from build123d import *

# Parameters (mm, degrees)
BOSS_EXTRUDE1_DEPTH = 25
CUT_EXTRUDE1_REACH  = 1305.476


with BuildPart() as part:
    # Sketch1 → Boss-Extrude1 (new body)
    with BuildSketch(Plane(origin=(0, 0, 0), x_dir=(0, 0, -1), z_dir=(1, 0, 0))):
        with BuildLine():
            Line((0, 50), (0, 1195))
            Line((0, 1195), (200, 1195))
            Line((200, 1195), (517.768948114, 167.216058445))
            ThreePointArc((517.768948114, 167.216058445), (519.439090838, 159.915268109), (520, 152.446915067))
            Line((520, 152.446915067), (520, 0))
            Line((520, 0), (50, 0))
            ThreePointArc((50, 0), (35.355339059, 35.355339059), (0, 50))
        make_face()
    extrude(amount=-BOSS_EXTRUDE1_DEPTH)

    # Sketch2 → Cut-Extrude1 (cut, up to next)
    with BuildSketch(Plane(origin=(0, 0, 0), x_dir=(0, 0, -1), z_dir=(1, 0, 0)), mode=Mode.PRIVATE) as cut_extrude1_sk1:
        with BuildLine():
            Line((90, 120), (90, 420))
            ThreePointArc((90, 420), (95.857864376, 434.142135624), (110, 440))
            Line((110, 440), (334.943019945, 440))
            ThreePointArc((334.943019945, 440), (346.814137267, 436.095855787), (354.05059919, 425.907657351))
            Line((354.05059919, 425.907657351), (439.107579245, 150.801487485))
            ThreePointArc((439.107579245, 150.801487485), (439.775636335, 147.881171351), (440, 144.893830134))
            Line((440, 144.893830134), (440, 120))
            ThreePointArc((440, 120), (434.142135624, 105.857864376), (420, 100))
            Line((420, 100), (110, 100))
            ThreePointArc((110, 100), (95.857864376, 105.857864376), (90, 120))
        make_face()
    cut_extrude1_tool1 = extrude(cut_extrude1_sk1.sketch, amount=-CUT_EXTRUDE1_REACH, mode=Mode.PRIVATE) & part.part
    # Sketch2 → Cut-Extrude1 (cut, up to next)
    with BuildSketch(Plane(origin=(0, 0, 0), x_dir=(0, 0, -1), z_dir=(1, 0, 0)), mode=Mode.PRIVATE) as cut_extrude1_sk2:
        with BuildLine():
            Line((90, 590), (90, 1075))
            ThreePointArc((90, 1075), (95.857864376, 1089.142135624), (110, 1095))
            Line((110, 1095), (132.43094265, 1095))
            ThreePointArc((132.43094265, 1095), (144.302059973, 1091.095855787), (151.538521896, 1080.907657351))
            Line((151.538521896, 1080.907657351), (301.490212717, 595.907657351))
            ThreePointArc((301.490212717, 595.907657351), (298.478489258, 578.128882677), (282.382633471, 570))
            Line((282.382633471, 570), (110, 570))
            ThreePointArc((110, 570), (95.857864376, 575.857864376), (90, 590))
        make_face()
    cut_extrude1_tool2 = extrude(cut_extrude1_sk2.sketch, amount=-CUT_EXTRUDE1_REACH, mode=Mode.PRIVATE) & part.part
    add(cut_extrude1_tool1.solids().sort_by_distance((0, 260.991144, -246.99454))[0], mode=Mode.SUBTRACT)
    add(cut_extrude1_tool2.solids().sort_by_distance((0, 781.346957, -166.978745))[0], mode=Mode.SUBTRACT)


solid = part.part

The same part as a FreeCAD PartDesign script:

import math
import FreeCAD as App
import Part
import Sketcher
from FreeCAD import Vector
Q = App.Units.Quantity

doc = App.newDocument("Part")
params = doc.addObject("Spreadsheet::Sheet", "Params")
for row, (alias, value) in enumerate([
    ("sketch1_radius", "50 mm"),
    ("sketch1_width", "1145 mm"),
    ("sketch1_height", "470 mm"),
    ("sketch1_height2", "200 mm"),
    ("pad1_length", "25 mm"),
    ("sketch2_radius", "20 mm"),
    ("sketch2_width", "300 mm"),
    ("sketch2_height", "310 mm"),
    ("sketch3_radius", "20 mm"),
    ("sketch3_width", "485 mm"),
], start=1):
    params.set(f"A{row}", alias)
    params.set(f"B{row}", "=" + value)
    params.setAlias(f"B{row}", alias)

body = doc.addObject("PartDesign::Body", "Body")

sketch1 = doc.addObject("Sketcher::SketchObject", "Sketch")
body.addObject(sketch1)
sketch1.AttachmentSupport = (doc.YZ_Plane, [""])
sketch1.MapMode = "FlatFace"
sketch1.addGeometry([
    Part.LineSegment(Vector(1195, 0, 0), Vector(50, 0, 0)),
    Part.ArcOfCircle(Part.Circle(Vector(0, 0, 0), Vector(0, 0, 1), 50), math.radians(-90), math.radians(0)),
    Part.LineSegment(Vector(0, -50, 0), Vector(0, -520, 0)),
    Part.LineSegment(Vector(0, -520, 0), Vector(152, -520, 0)),
    Part.ArcOfCircle(Part.Circle(Vector(152, -470, 0), Vector(0, 0, 1), 50), math.radians(-90), math.radians(-72.82)),
    Part.LineSegment(Vector(167, -518, 0), Vector(1195, -200, 0)),
    Part.LineSegment(Vector(1195, -200, 0), Vector(1195, 0, 0)),
], False)
sketch1.addConstraint([
    Sketcher.Constraint("Coincident", 0, 2, 1, 2),
    Sketcher.Constraint("Coincident", 1, 1, 2, 1),
    Sketcher.Constraint("Coincident", 2, 2, 3, 1),
    Sketcher.Constraint("Tangent", 3, 2, 4, 1),
    Sketcher.Constraint("Tangent", 4, 2, 5, 1),
    Sketcher.Constraint("Coincident", 5, 2, 6, 1),
    Sketcher.Constraint("Coincident", 6, 2, 0, 1),
    Sketcher.Constraint("Horizontal", 0),
    Sketcher.Constraint("Vertical", 2),
    Sketcher.Constraint("Horizontal", 3),
    Sketcher.Constraint("Vertical", 6),
    Sketcher.Constraint("Coincident", 1, 3, -1, 1),
    Sketcher.Constraint("Equal", 1, 4),
    Sketcher.Constraint("PointOnObject", 0, 2, -1),
    Sketcher.Constraint("PointOnObject", 1, 1, -2),
    Sketcher.Constraint("Radius", 1, Q("50 mm")),
    Sketcher.Constraint("DistanceX", 0, 2, 0, 1, Q("1145 mm")),
    Sketcher.Constraint("DistanceY", 2, 2, 2, 1, Q("470 mm")),
    Sketcher.Constraint("DistanceY", 6, 1, 6, 2, Q("200 mm")),
    Sketcher.Constraint("Distance", 5, Q("1075.786659 mm")),
])
sketch1.setExpression("Constraints[15]", "Params.sketch1_radius")
sketch1.setExpression("Constraints[16]", "Params.sketch1_width")
sketch1.setExpression("Constraints[17]", "Params.sketch1_height")
sketch1.setExpression("Constraints[18]", "Params.sketch1_height2")
pad1 = doc.addObject("PartDesign::Pad", "Pad")
body.addObject(pad1)
pad1.Profile = sketch1
pad1.setExpression("Length", "Params.pad1_length")
pad1.Reversed = True

sketch2 = doc.addObject("Sketcher::SketchObject", "Sketch001")
body.addObject(sketch2)
sketch2.AttachmentSupport = (doc.YZ_Plane, [""])
sketch2.MapMode = "FlatFace"
sketch2.addGeometry([
    Part.LineSegment(Vector(420, -90, 0), Vector(120, -90, 0)),
    Part.ArcOfCircle(Part.Circle(Vector(120, -110, 0), Vector(0, 0, 1), 20), math.radians(90), math.radians(180)),
    Part.LineSegment(Vector(100, -110, 0), Vector(100, -420, 0)),
    Part.ArcOfCircle(Part.Circle(Vector(120, -420, 0), Vector(0, 0, 1), 20), math.radians(180), math.radians(270)),
    Part.LineSegment(Vector(120, -440, 0), Vector(145, -440, 0)),
    Part.ArcOfCircle(Part.Circle(Vector(145, -420, 0), Vector(0, 0, 1), 20), math.radians(-90), math.radians(-72.82)),
    Part.LineSegment(Vector(151, -439, 0), Vector(426, -354, 0)),
    Part.ArcOfCircle(Part.Circle(Vector(420, -335, 0), Vector(0, 0, 1), 20), math.radians(-73), math.radians(0)),
    Part.LineSegment(Vector(440, -335, 0), Vector(440, -110, 0)),
    Part.ArcOfCircle(Part.Circle(Vector(420, -110, 0), Vector(0, 0, 1), 20), math.radians(0), math.radians(90)),
], False)
sketch2.addConstraint([
    Sketcher.Constraint("Tangent", 0, 2, 1, 1),
    Sketcher.Constraint("Tangent", 1, 2, 2, 1),
    Sketcher.Constraint("Tangent", 2, 2, 3, 1),
    Sketcher.Constraint("Tangent", 3, 2, 4, 1),
    Sketcher.Constraint("Tangent", 4, 2, 5, 1),
    Sketcher.Constraint("Tangent", 5, 2, 6, 1),
    Sketcher.Constraint("Tangent", 6, 2, 7, 1),
    Sketcher.Constraint("Tangent", 7, 2, 8, 1),
    Sketcher.Constraint("Tangent", 8, 2, 9, 1),
    Sketcher.Constraint("Tangent", 9, 2, 0, 1),
    Sketcher.Constraint("Horizontal", 0),
    Sketcher.Constraint("Vertical", 2),
    Sketcher.Constraint("Horizontal", 4),
    Sketcher.Constraint("Vertical", 8),
    Sketcher.Constraint("Equal", 1, 3),
    Sketcher.Constraint("Equal", 3, 5),
    Sketcher.Constraint("Equal", 5, 7),
    Sketcher.Constraint("Equal", 7, 9),
    Sketcher.Constraint("Radius", 1, Q("20 mm")),
    Sketcher.Constraint("DistanceX", 0, 2, 0, 1, Q("300 mm")),
    Sketcher.Constraint("DistanceY", 2, 2, 2, 1, Q("310 mm")),
    Sketcher.Constraint("DistanceX", -1, 1, 1, 3, Q("120 mm")),
    Sketcher.Constraint("DistanceY", 1, 3, -1, 1, Q("110 mm")),
    Sketcher.Constraint("DistanceX", 4, 1, 4, 2, Q("24.89383 mm")),
    Sketcher.Constraint("DistanceY", 8, 1, 8, 2, Q("224.94302 mm")),
])
sketch2.setExpression("Constraints[18]", "Params.sketch2_radius")
sketch2.setExpression("Constraints[19]", "Params.sketch2_width")
sketch2.setExpression("Constraints[20]", "Params.sketch2_height")
pocket1 = doc.addObject("PartDesign::Pocket", "Pocket")
body.addObject(pocket1)
pocket1.Profile = sketch2
pocket1.Type = "UpToFirst"

sketch3 = doc.addObject("Sketcher::SketchObject", "Sketch002")
body.addObject(sketch3)
sketch3.AttachmentSupport = (doc.YZ_Plane, [""])
sketch3.MapMode = "FlatFace"
sketch3.addGeometry([
    Part.LineSegment(Vector(1075, -90, 0), Vector(590, -90, 0)),
    Part.ArcOfCircle(Part.Circle(Vector(590, -110, 0), Vector(0, 0, 1), 20), math.radians(90), math.radians(180)),
    Part.LineSegment(Vector(570, -110, 0), Vector(570, -282, 0)),
    Part.ArcOfCircle(Part.Circle(Vector(590, -282, 0), Vector(0, 0, 1), 20), math.radians(180), math.radians(287)),
    Part.LineSegment(Vector(596, -301, 0), Vector(1081, -152, 0)),
    Part.ArcOfCircle(Part.Circle(Vector(1075, -132, 0), Vector(0, 0, 1), 20), math.radians(-73), math.radians(0)),
    Part.LineSegment(Vector(1095, -132, 0), Vector(1095, -110, 0)),
    Part.ArcOfCircle(Part.Circle(Vector(1075, -110, 0), Vector(0, 0, 1), 20), math.radians(0), math.radians(90)),
], False)
sketch3.addConstraint([
    Sketcher.Constraint("Tangent", 0, 2, 1, 1),
    Sketcher.Constraint("Tangent", 1, 2, 2, 1),
    Sketcher.Constraint("Tangent", 2, 2, 3, 1),
    Sketcher.Constraint("Tangent", 3, 2, 4, 1),
    Sketcher.Constraint("Tangent", 4, 2, 5, 1),
    Sketcher.Constraint("Tangent", 5, 2, 6, 1),
    Sketcher.Constraint("Tangent", 6, 2, 7, 1),
    Sketcher.Constraint("Tangent", 7, 2, 0, 1),
    Sketcher.Constraint("Horizontal", 0),
    Sketcher.Constraint("Vertical", 2),
    Sketcher.Constraint("Vertical", 6),
    Sketcher.Constraint("Equal", 1, 3),
    Sketcher.Constraint("Equal", 3, 5),
    Sketcher.Constraint("Equal", 5, 7),
    Sketcher.Constraint("Radius", 1, Q("20 mm")),
    Sketcher.Constraint("DistanceX", 0, 2, 0, 1, Q("485 mm")),
    Sketcher.Constraint("DistanceX", -1, 1, 1, 3, Q("590 mm")),
    Sketcher.Constraint("DistanceY", 1, 3, -1, 1, Q("110 mm")),
    Sketcher.Constraint("DistanceY", 2, 2, 2, 1, Q("172.382633 mm")),
    Sketcher.Constraint("DistanceY", 6, 1, 6, 2, Q("22.430943 mm")),
])
sketch3.setExpression("Constraints[14]", "Params.sketch3_radius")
sketch3.setExpression("Constraints[15]", "Params.sketch3_width")
pocket2 = doc.addObject("PartDesign::Pocket", "Pocket001")
body.addObject(pocket2)
pocket2.Profile = sketch3
pocket2.Type = "UpToFirst"

doc.recompute()
